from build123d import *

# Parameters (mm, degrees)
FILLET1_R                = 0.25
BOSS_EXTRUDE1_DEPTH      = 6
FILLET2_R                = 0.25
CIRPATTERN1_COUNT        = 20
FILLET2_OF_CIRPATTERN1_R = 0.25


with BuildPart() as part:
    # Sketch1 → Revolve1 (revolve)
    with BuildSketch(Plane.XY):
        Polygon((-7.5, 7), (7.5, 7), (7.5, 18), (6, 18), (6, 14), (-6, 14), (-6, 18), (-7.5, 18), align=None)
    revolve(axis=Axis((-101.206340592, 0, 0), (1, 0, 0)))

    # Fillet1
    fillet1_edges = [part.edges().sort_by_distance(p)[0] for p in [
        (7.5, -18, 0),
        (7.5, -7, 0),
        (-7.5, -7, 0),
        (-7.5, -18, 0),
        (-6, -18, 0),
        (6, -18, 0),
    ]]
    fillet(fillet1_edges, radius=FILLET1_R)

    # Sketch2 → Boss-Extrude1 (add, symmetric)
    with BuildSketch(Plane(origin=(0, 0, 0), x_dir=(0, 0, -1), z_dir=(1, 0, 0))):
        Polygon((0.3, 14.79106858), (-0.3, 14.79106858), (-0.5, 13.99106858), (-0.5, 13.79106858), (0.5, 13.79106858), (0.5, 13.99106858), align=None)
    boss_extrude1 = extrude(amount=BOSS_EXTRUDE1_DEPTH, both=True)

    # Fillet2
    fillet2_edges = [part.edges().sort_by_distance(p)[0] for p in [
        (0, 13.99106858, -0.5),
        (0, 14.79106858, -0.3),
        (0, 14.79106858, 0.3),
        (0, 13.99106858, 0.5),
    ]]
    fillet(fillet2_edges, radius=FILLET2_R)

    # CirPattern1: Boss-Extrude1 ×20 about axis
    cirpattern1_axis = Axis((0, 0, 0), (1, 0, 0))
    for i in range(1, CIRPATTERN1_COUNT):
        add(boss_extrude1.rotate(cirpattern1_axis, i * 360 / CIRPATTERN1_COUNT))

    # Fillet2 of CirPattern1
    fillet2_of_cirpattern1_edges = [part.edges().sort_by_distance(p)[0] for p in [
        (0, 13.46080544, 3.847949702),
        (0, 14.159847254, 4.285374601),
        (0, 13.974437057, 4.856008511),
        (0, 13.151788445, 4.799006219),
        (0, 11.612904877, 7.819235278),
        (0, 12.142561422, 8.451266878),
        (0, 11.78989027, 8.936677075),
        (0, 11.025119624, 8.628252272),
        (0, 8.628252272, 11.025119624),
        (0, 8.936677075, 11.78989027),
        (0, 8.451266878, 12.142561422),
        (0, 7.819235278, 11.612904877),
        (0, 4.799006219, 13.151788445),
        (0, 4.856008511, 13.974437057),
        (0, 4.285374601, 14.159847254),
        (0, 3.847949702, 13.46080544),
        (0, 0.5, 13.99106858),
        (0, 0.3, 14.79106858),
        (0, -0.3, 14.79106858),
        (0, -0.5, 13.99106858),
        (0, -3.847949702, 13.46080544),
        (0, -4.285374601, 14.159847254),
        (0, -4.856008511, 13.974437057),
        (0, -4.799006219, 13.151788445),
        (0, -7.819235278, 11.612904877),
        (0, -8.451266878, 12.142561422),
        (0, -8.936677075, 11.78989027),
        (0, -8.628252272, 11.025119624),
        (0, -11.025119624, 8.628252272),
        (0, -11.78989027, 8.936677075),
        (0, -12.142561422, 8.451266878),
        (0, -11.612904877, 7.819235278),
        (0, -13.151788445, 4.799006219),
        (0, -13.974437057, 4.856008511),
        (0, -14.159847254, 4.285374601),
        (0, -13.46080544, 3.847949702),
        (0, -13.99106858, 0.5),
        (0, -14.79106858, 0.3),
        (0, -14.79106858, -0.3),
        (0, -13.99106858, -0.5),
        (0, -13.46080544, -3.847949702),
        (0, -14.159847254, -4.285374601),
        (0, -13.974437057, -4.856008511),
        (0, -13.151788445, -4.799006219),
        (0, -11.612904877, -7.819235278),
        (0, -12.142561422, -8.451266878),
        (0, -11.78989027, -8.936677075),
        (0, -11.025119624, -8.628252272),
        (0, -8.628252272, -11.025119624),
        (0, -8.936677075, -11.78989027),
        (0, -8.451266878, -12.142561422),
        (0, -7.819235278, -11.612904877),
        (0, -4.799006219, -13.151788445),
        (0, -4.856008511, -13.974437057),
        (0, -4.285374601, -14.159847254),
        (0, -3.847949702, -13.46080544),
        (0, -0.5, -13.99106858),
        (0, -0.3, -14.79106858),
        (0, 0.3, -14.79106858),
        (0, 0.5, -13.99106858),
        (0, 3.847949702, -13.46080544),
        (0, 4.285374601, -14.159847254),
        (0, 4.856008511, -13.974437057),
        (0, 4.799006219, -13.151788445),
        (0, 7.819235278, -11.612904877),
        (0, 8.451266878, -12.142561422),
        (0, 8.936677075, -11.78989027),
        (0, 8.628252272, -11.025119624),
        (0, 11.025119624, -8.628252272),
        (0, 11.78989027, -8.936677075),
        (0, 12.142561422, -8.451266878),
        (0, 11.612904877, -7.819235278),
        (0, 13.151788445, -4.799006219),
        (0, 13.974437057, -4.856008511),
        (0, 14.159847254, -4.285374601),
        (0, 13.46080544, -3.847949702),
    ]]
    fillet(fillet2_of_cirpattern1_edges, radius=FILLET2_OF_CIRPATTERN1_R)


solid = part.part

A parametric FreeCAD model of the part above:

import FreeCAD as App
import Part
import Sketcher
from FreeCAD import Vector


def edges_at(feature, points):
    """Names of the edges that pass closest to the given points."""
    edges = feature.Shape.Edges
    near = lambda p: min(range(len(edges)), key=lambda i: edges[i].distToShape(Part.Vertex(*p))[0])
    return sorted({f"Edge{near(p) + 1}" for p in points})


def add_polygon(sketch, points):
    """Adds a closed chain of lines whose ends are joined by coincident constraints."""
    first, n = sketch.GeometryCount, len(points)
    for a, b in zip(points, points[1:] + points[:1]):
        sketch.addGeometry(Part.LineSegment(App.Vector(*a, 0), App.Vector(*b, 0)), False)
    for i in range(n):
        sketch.addConstraint(Sketcher.Constraint("Coincident", first + i, 2, first + (i + 1) % n, 1))

doc = App.newDocument("Part")
body = doc.addObject("PartDesign::Body", "Body")

# Sketch on XY plane
sketch1 = doc.addObject("Sketcher::SketchObject", "Sketch")
body.addObject(sketch1)
sketch1.AttachmentSupport = (doc.XY_Plane, [""])
sketch1.MapMode = "FlatFace"
add_polygon(sketch1, [(-7.5, 7), (7.5, 7), (7.5, 18), (6, 18), (6, 14), (-6, 14), (-6, 18), (-7.5, 18)])  # lines 0-7
sketch1.addConstraint([
    Sketcher.Constraint("Horizontal", 0),
    Sketcher.Constraint("Vertical", 1),
    Sketcher.Constraint("Horizontal", 2),
    Sketcher.Constraint("Vertical", 3),
    Sketcher.Constraint("Horizontal", 4),
    Sketcher.Constraint("Vertical", 5),
    Sketcher.Constraint("Horizontal", 6),
    Sketcher.Constraint("Vertical", 7),
    Sketcher.Constraint("Symmetric", 2, 2, 5, 2, -2),
    Sketcher.Constraint("Equal", 2, 6),
    Sketcher.Constraint("DistanceX", 0, 1, 0, 2, 15.0),
    Sketcher.Constraint("DistanceX", 4, 2, 4, 1, 12.0),
    Sketcher.Constraint("DistanceY", 1, 1, 1, 2, 11.0),
    Sketcher.Constraint("DistanceY", 3, 2, 3, 1, 4.0),
    Sketcher.Constraint("DistanceY", -1, 1, 0, 2, 7.0),
])
revolution = doc.addObject("PartDesign::Revolution", "Revolution")
body.addObject(revolution)
revolution.Profile = sketch1
revolution.ReferenceAxis = (sketch1, ["H_Axis"])
revolution.Angle = 360
doc.recompute()

fillet = doc.addObject("PartDesign::Fillet", "Fillet")
body.addObject(fillet)
fillet.Base = (revolution, edges_at(revolution, [
    (7.5, -18, 0),
    (7.5, -7, 0),
    (-7.5, -7, 0),
    (-7.5, -18, 0),
    (-6, -18, 0),
    (6, -18, 0),
]))
fillet.Radius = 0.25

# Sketch on YZ plane
sketch2 = doc.addObject("Sketcher::SketchObject", "Sketch001")
body.addObject(sketch2)
sketch2.AttachmentSupport = (doc.YZ_Plane, [""])
sketch2.MapMode = "FlatFace"
add_polygon(sketch2, [(14.79, -0.3), (14.79, 0.3), (13.99, 0.5), (13.79, 0.5), (13.79, -0.5), (13.99, -0.5)])  # lines 0-5
sketch2.addConstraint([
    Sketcher.Constraint("Vertical", 0),
    Sketcher.Constraint("Horizontal", 2),
    Sketcher.Constraint("Vertical", 3),
    Sketcher.Constraint("Horizontal", 4),
    Sketcher.Constraint("Symmetric", 1, 2, 4, 2, -1),
    Sketcher.Constraint("Equal", 1, 5),
    Sketcher.Constraint("DistanceY", 3, 2, 3, 1, 1.0),
    Sketcher.Constraint("DistanceX", 2, 2, 2, 1, 0.2),
    Sketcher.Constraint("DistanceY", 0, 1, 0, 2, 0.6),
    Sketcher.Constraint("DistanceX", 2, 2, 0, 2, 1.0),
    Sketcher.Constraint("DistanceX", -1, 1, 0, 2, 14.791069),
])
pad1 = doc.addObject("PartDesign::Pad", "Pad")
body.addObject(pad1)
pad1.Profile = sketch2
pad1.Length = 12
pad1.Midplane = True
doc.recompute()

fillet2 = doc.addObject("PartDesign::Fillet", "Fillet001")
body.addObject(fillet2)
fillet2.Base = (pad1, edges_at(pad1, [
    (0, 13.991, -0.5),
    (0, 14.791, -0.3),
    (0, 14.791, 0.3),
    (0, 13.991, 0.5),
]))
fillet2.Radius = 0.25
doc.recompute()

polarpattern = doc.addObject("PartDesign::PolarPattern", "PolarPattern")
body.addObject(polarpattern)
polarpattern.Originals = [pad1]
polarpattern.Axis = (doc.X_Axis, [""])
polarpattern.Angle = 360
polarpattern.Occurrences = 20
body.Tip = polarpattern
doc.recompute()

fillet3 = doc.addObject("PartDesign::Fillet", "Fillet002")
body.addObject(fillet3)
fillet3.Base = (polarpattern, edges_at(polarpattern, [
    (0, 13.461, 3.848),
    (0, 14.16, 4.285),
    (0, 13.974, 4.856),
    (0, 13.152, 4.799),
    (0, 11.613, 7.819),
    (0, 12.143, 8.451),
    (0, 11.79, 8.937),
    (0, 11.025, 8.628),
    (0, 8.628, 11.025),
    (0, 8.937, 11.79),
    (0, 8.451, 12.143),
    (0, 7.819, 11.613),
    (0, 4.799, 13.152),
    (0, 4.856, 13.974),
    (0, 4.285, 14.16),
    (0, 3.848, 13.461),
    (0, 0.5, 13.991),
    (0, 0.3, 14.791),
    (0, -0.3, 14.791),
    (0, -0.5, 13.991),
    (0, -3.848, 13.461),
    (0, -4.285, 14.16),
    (0, -4.856, 13.974),
    (0, -4.799, 13.152),
    (0, -7.819, 11.613),
    (0, -8.451, 12.143),
    (0, -8.937, 11.79),
    (0, -8.628, 11.025),
    (0, -11.025, 8.628),
    (0, -11.79, 8.937),
    (0, -12.143, 8.451),
    (0, -11.613, 7.819),
    (0, -13.152, 4.799),
    (0, -13.974, 4.856),
    (0, -14.16, 4.285),
    (0, -13.461, 3.848),
    (0, -13.991, 0.5),
    (0, -14.791, 0.3),
    (0, -14.791, -0.3),
    (0, -13.991, -0.5),
    (0, -13.461, -3.848),
    (0, -14.16, -4.285),
    (0, -13.974, -4.856),
    (0, -13.152, -4.799),
    (0, -11.613, -7.819),
    (0, -12.143, -8.451),
    (0, -11.79, -8.937),
    (0, -11.025, -8.628),
    (0, -8.628, -11.025),
    (0, -8.937, -11.79),
    (0, -8.451, -12.143),
    (0, -7.819, -11.613),
    (0, -4.799, -13.152),
    (0, -4.856, -13.974),
    (0, -4.285, -14.16),
    (0, -3.848, -13.461),
    (0, -0.5, -13.991),
    (0, -0.3, -14.791),
    (0, 0.3, -14.791),
    (0, 0.5, -13.991),
    (0, 3.848, -13.461),
    (0, 4.285, -14.16),
    (0, 4.856, -13.974),
    (0, 4.799, -13.152),
    (0, 7.819, -11.613),
    (0, 8.451, -12.143),
    (0, 8.937, -11.79),
    (0, 8.628, -11.025),
    (0, 11.025, -8.628),
    (0, 11.79, -8.937),
    (0, 12.143, -8.451),
    (0, 11.613, -7.819),
    (0, 13.152, -4.799),
    (0, 13.974, -4.856),
    (0, 14.16, -4.285),
    (0, 13.461, -3.848),
]))
fillet3.Radius = 0.25

doc.recompute()
